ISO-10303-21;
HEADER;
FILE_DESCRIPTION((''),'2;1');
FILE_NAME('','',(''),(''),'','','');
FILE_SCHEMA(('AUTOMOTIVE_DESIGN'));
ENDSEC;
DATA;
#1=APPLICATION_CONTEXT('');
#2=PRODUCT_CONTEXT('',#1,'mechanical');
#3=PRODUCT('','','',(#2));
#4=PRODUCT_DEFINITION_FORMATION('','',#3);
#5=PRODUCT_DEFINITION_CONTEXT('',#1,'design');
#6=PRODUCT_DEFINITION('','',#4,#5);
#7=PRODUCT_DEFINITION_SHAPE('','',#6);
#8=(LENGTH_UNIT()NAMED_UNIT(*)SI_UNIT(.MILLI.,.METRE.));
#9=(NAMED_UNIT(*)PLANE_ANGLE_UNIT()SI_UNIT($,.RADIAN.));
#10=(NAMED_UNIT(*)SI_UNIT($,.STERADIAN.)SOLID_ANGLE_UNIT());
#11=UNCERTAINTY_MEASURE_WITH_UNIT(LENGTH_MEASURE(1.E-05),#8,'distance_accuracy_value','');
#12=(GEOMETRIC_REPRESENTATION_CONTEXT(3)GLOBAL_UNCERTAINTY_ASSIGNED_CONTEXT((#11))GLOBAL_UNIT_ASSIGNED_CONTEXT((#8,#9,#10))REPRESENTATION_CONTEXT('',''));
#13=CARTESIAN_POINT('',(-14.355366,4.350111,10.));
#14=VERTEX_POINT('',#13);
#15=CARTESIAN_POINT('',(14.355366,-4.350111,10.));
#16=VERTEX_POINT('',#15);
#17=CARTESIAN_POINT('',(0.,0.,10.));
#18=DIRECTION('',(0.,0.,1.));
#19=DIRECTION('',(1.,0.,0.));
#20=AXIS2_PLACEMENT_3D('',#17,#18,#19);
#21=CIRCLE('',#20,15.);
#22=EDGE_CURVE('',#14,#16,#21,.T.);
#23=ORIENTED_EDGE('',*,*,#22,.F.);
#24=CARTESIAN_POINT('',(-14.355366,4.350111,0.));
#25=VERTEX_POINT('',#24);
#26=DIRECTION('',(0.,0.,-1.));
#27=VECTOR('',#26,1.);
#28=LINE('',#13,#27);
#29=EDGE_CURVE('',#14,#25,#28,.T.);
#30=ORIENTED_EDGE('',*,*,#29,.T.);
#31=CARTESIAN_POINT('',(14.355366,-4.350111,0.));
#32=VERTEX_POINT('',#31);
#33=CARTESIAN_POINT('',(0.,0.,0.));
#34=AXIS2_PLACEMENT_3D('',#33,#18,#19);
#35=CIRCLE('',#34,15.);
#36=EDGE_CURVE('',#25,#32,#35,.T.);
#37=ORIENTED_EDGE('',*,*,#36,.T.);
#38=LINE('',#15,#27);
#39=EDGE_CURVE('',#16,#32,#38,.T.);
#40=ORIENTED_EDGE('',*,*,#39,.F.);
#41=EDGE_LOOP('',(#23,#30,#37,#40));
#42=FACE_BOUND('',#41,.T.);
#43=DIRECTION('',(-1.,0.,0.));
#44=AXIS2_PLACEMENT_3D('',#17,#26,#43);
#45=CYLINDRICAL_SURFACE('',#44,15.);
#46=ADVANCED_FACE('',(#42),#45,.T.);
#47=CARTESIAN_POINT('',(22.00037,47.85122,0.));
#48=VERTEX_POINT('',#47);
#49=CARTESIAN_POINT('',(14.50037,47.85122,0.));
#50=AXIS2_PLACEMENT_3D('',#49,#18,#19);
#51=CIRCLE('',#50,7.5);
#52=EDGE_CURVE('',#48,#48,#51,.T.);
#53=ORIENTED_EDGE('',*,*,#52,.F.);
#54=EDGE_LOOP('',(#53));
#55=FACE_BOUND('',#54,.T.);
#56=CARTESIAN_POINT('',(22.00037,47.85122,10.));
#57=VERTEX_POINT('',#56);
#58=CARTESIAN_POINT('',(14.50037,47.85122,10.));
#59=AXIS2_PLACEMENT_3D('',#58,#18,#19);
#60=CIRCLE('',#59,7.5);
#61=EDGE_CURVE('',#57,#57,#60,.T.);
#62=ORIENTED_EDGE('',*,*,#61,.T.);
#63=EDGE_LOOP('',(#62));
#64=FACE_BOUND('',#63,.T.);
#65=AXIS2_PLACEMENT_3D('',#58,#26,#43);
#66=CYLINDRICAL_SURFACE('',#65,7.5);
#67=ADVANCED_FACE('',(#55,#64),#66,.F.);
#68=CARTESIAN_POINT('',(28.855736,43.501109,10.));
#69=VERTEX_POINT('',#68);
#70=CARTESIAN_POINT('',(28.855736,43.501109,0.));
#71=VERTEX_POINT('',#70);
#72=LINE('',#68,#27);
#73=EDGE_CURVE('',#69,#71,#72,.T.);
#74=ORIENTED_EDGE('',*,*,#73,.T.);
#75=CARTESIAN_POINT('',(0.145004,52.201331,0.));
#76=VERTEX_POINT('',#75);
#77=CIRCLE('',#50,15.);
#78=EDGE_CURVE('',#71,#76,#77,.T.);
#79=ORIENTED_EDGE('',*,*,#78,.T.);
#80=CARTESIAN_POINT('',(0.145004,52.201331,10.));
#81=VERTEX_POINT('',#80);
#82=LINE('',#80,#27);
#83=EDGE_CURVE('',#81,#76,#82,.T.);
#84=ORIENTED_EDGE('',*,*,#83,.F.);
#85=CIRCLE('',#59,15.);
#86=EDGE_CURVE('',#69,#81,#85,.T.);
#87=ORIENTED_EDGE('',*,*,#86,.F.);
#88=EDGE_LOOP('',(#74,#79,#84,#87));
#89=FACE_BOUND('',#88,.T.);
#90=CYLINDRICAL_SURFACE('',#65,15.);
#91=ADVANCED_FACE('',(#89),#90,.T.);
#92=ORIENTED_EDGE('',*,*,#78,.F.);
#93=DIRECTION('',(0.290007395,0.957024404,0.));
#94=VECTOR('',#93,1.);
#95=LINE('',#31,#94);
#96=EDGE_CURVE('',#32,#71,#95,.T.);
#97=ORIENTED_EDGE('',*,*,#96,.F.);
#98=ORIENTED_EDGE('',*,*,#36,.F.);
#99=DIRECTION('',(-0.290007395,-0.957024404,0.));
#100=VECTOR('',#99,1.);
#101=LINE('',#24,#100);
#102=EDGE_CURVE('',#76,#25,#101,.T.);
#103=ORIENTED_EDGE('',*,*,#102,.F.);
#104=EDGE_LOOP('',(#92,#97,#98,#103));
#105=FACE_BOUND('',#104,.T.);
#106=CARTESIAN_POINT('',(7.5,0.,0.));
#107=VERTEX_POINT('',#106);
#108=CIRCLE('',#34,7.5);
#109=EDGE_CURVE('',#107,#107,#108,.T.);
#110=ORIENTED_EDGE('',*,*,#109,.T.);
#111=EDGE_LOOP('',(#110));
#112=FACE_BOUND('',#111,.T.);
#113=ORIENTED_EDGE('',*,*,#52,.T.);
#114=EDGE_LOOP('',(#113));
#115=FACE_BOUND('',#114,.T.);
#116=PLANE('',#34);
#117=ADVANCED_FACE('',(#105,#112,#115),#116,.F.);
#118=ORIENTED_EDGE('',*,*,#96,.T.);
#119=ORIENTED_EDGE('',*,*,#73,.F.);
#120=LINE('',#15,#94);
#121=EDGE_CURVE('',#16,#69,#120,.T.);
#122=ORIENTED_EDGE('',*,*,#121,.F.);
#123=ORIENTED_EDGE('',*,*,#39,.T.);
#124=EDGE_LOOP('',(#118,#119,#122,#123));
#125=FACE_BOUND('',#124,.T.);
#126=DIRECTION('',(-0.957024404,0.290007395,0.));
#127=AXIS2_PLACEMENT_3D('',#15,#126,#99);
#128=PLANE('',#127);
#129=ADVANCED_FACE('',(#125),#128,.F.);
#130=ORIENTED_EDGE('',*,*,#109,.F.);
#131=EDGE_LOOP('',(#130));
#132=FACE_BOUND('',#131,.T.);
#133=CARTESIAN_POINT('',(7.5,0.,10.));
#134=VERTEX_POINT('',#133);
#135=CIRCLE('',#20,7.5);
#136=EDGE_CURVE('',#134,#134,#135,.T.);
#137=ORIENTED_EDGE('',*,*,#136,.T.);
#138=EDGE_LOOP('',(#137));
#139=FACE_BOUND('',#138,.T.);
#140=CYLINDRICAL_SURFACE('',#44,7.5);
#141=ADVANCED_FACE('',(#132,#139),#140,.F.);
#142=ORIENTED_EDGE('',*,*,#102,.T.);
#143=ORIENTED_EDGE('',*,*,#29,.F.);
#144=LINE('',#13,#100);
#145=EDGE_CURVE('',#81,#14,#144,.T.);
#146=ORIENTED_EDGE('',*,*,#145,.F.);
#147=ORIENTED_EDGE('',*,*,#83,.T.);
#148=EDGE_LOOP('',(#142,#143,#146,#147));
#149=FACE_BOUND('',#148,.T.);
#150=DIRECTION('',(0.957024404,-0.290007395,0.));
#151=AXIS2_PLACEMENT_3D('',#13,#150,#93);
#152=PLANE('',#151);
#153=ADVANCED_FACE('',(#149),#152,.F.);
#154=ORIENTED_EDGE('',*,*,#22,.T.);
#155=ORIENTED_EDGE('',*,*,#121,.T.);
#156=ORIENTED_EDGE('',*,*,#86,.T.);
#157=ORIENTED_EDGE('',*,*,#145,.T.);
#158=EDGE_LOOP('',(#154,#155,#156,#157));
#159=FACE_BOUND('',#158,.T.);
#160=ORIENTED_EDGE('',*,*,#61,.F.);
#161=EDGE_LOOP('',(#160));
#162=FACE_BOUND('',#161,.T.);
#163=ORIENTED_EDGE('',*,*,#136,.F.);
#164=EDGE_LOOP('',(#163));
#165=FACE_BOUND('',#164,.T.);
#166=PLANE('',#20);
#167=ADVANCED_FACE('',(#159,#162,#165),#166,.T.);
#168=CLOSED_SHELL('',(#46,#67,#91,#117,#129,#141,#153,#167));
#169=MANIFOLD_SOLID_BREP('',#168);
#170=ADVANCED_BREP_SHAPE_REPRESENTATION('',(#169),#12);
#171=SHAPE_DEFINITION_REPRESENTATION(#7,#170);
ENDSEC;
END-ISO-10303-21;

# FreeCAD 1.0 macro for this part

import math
import FreeCAD as App
import Part
import Sketcher
from FreeCAD import Vector

doc = App.newDocument("Part")
body = doc.addObject("PartDesign::Body", "Body")

# Sketch on XY plane
sketch1 = doc.addObject("Sketcher::SketchObject", "Sketch")
body.addObject(sketch1)
sketch1.AttachmentSupport = (doc.XY_Plane, [""])
sketch1.MapMode = "FlatFace"
sketch1.addGeometry([
    Part.LineSegment(Vector(0, 52, 0), Vector(-14, 4, 0)),  # 0
    Part.ArcOfCircle(Part.Circle(Vector(0, 0, 0), Vector(0, 0, 1), 15), math.radians(163), math.radians(343)),  # 1
    Part.LineSegment(Vector(14, -4, 0), Vector(29, 44, 0)),  # 2
    Part.ArcOfCircle(Part.Circle(Vector(15, 48, 0), Vector(0, 0, 1), 15), math.radians(-17), math.radians(163)),  # 3
    Part.Circle(Vector(0, 0, 0), Vector(0, 0, 1), 8),  # 4
    Part.Circle(Vector(15, 48, 0), Vector(0, 0, 1), 8),  # 5
], False)
sketch1.addConstraint([
    Sketcher.Constraint("Tangent", 0, 2, 1, 1),
    Sketcher.Constraint("Tangent", 1, 2, 2, 1),
    Sketcher.Constraint("Tangent", 2, 2, 3, 1),
    Sketcher.Constraint("Tangent", 3, 2, 0, 1),
    Sketcher.Constraint("Coincident", 1, 3, -1, 1),
    Sketcher.Constraint("Coincident", 4, 3, -1, 1),
    Sketcher.Constraint("Coincident", 5, 3, 3, 3),
    Sketcher.Constraint("Equal", 1, 3),
    Sketcher.Constraint("Equal", 4, 5),
    Sketcher.Constraint("Diameter", 4, 15.0),
    Sketcher.Constraint("Radius", 1, 15.0),
    Sketcher.Constraint("Distance", 0, 50.0),
    Sketcher.Constraint("DistanceX", -1, 1, 3, 3, 14.50037),
])
pad1 = doc.addObject("PartDesign::Pad", "Pad")
body.addObject(pad1)
pad1.Profile = sketch1
pad1.Length = 10

doc.recompute()
